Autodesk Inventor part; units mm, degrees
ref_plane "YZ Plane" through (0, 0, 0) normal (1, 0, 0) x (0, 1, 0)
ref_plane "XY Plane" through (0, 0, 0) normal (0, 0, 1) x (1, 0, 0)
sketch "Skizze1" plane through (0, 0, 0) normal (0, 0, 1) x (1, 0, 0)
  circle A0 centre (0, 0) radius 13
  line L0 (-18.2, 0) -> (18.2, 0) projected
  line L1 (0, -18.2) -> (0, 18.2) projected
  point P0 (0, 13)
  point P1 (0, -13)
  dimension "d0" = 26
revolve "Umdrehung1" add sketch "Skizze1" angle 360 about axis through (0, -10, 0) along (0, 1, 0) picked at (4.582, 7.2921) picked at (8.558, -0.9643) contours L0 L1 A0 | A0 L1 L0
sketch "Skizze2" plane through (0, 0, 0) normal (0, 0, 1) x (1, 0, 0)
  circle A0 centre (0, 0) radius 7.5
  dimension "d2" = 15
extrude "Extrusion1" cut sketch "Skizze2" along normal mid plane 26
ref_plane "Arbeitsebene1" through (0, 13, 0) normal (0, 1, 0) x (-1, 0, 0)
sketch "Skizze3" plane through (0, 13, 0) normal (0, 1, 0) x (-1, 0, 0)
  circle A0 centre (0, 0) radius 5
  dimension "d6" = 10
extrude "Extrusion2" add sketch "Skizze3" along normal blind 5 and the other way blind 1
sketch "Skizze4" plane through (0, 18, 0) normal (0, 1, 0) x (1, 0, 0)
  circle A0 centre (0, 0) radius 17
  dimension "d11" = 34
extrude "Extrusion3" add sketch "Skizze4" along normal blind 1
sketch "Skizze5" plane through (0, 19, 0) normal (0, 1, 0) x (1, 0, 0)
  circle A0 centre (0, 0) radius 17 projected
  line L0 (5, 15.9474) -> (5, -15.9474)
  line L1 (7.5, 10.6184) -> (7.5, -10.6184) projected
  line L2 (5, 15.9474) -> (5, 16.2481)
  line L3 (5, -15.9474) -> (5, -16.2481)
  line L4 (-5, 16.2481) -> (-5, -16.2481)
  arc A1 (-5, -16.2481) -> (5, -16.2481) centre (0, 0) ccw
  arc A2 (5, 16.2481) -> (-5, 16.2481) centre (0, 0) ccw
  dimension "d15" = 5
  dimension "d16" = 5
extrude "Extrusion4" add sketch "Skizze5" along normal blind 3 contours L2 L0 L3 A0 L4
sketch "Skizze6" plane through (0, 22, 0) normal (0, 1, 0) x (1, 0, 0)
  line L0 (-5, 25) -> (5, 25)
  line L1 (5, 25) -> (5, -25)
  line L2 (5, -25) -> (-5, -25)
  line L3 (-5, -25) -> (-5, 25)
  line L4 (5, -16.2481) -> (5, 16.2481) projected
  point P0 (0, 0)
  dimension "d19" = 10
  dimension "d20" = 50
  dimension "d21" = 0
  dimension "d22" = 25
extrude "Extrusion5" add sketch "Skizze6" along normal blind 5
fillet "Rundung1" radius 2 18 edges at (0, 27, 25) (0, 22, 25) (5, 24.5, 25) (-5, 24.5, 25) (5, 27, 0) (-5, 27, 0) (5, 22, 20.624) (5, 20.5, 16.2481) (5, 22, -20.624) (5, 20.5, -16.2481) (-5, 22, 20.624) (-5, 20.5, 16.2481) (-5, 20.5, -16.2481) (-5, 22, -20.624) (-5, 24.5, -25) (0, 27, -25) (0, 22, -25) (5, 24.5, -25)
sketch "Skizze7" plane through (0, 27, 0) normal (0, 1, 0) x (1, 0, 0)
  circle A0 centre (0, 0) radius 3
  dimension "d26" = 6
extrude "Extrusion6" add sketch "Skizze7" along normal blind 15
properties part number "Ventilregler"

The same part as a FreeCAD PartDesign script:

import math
import FreeCAD as App
import Part
import Sketcher


def edges_at(feature, points):
    """Names of the edges that pass closest to the given points."""
    edges = feature.Shape.Edges
    near = lambda p: min(range(len(edges)), key=lambda i: edges[i].distToShape(Part.Vertex(*p))[0])
    return sorted({f"Edge{near(p) + 1}" for p in points})

doc = App.newDocument("Part")
body = doc.addObject("PartDesign::Body", "Body")

sketch1 = body.newObject("Sketcher::SketchObject", "Sketch")
sketch1.AttachmentSupport = (doc.getObject("XY_Plane"), [""])
sketch1.MapMode = "FlatFace"
sketch1.addGeometry([
    Part.LineSegment(App.Vector(0, 13, 0), App.Vector(0, -13, 0)),
    Part.ArcOfCircle(Part.Circle(App.Vector(0, 0, 0), App.Vector(0, 0, 1), 13), math.radians(-90), math.radians(90)),
], False)
sketch1.addConstraint([
    Sketcher.Constraint("Coincident", 0, 1, 1, 2),
    Sketcher.Constraint("Coincident", 1, 1, 0, 2),
    Sketcher.Constraint("Vertical", 0),
    Sketcher.Constraint("Coincident", 1, 3, -1, 1),
    Sketcher.Constraint("PointOnObject", 0, 1, -2),
    Sketcher.Constraint("Radius", 1, 13.0),
])
revolution = body.newObject("PartDesign::Revolution", "Revolution")
revolution.Profile = sketch1
revolution.ReferenceAxis = (sketch1, ["V_Axis"])
revolution.Angle = 360

sketch2 = body.newObject("Sketcher::SketchObject", "Sketch001")
sketch2.AttachmentSupport = (doc.getObject("XY_Plane"), [""])
sketch2.MapMode = "FlatFace"
sketch2.addGeometry(Part.Circle(App.Vector(0, 0, 0), App.Vector(0, 0, 1), 7.5), False)
sketch2.addConstraint([
    Sketcher.Constraint("Coincident", 0, 3, -1, 1),
    Sketcher.Constraint("Diameter", 0, 15.0),
])
pocket1 = body.newObject("PartDesign::Pocket", "Pocket")
pocket1.Profile = sketch2
pocket1.Length = 26
pocket1.Midplane = True

sketch3 = body.newObject("Sketcher::SketchObject", "Sketch002")
sketch3.AttachmentSupport = (doc.getObject("XZ_Plane"), [""])
sketch3.MapMode = "FlatFace"
sketch3.AttachmentOffset = App.Placement(App.Vector(0, 0, -13), App.Rotation())
sketch3.addGeometry(Part.Circle(App.Vector(0, 0, 0), App.Vector(0, 0, 1), 5), False)
sketch3.addConstraint([
    Sketcher.Constraint("Coincident", 0, 3, -1, 1),
    Sketcher.Constraint("Diameter", 0, 10.0),
])
pad1 = body.newObject("PartDesign::Pad", "Pad")
pad1.Profile = sketch3
pad1.Type = "TwoLengths"
pad1.Length = 5
pad1.Length2 = 1
pad1.Reversed = True

sketch4 = body.newObject("Sketcher::SketchObject", "Sketch003")
sketch4.AttachmentSupport = (doc.getObject("XZ_Plane"), [""])
sketch4.MapMode = "FlatFace"
sketch4.AttachmentOffset = App.Placement(App.Vector(0, 0, -18), App.Rotation())
sketch4.addGeometry(Part.Circle(App.Vector(0, 0, 0), App.Vector(0, 0, 1), 17), False)
sketch4.addConstraint([
    Sketcher.Constraint("Coincident", 0, 3, -1, 1),
    Sketcher.Constraint("Diameter", 0, 34.0),
])
pad2 = body.newObject("PartDesign::Pad", "Pad001")
pad2.Profile = sketch4
pad2.Length = 1
pad2.Reversed = True

sketch5 = body.newObject("Sketcher::SketchObject", "Sketch004")
sketch5.AttachmentSupport = (doc.getObject("XZ_Plane"), [""])
sketch5.MapMode = "FlatFace"
sketch5.AttachmentOffset = App.Placement(App.Vector(0, 0, -19), App.Rotation())
sketch5.addGeometry([
    Part.LineSegment(App.Vector(5, 16.2481, 0), App.Vector(5, -16.2481, 0)),
    Part.ArcOfCircle(Part.Circle(App.Vector(0, 0, 0), App.Vector(0, 0, 1), 17), math.radians(-107.104612), math.radians(-72.895388)),
    Part.LineSegment(App.Vector(-5, -16.2481, 0), App.Vector(-5, 16.2481, 0)),
    Part.ArcOfCircle(Part.Circle(App.Vector(0, 0, 0), App.Vector(0, 0, 1), 17), math.radians(72.895388), math.radians(107.104612)),
], False)
sketch5.addConstraint([
    Sketcher.Constraint("Coincident", 0, 2, 1, 2),
    Sketcher.Constraint("Coincident", 1, 1, 2, 1),
    Sketcher.Constraint("Coincident", 2, 2, 3, 2),
    Sketcher.Constraint("Coincident", 3, 1, 0, 1),
    Sketcher.Constraint("Vertical", 0),
    Sketcher.Constraint("Vertical", 2),
    Sketcher.Constraint("Coincident", 1, 3, -1, 1),
    Sketcher.Constraint("Coincident", 3, 3, -1, 1),
    Sketcher.Constraint("Equal", 1, 3),
    Sketcher.Constraint("Horizontal", 0, 2, 1, 1),
    Sketcher.Constraint("DistanceX", -1, 1, 0, 2, 5.0),
    Sketcher.Constraint("Radius", 1, 17.0),
])
pad3 = body.newObject("PartDesign::Pad", "Pad002")
pad3.Profile = sketch5
pad3.Length = 3
pad3.Reversed = True

sketch6 = body.newObject("Sketcher::SketchObject", "Sketch005")
sketch6.AttachmentSupport = (doc.getObject("XZ_Plane"), [""])
sketch6.MapMode = "FlatFace"
sketch6.AttachmentOffset = App.Placement(App.Vector(0, 0, -22), App.Rotation())
sketch6.addGeometry([
    Part.LineSegment(App.Vector(5, -25, 0), App.Vector(-5, -25, 0)),
    Part.LineSegment(App.Vector(-5, -25, 0), App.Vector(-5, 25, 0)),
    Part.LineSegment(App.Vector(-5, 25, 0), App.Vector(5, 25, 0)),
    Part.LineSegment(App.Vector(5, 25, 0), App.Vector(5, -25, 0)),
], False)
sketch6.addConstraint([
    Sketcher.Constraint("Coincident", 0, 2, 1, 1),
    Sketcher.Constraint("Coincident", 1, 2, 2, 1),
    Sketcher.Constraint("Coincident", 2, 2, 3, 1),
    Sketcher.Constraint("Coincident", 3, 2, 0, 1),
    Sketcher.Constraint("Horizontal", 0),
    Sketcher.Constraint("Vertical", 1),
    Sketcher.Constraint("Horizontal", 2),
    Sketcher.Constraint("Vertical", 3),
    Sketcher.Constraint("Symmetric", 0, 2, 2, 2, -1, 1),
    Sketcher.Constraint("DistanceX", 0, 2, 0, 1, 10.0),
    Sketcher.Constraint("DistanceY", 1, 1, 1, 2, 50.0),
])
pad4 = body.newObject("PartDesign::Pad", "Pad003")
pad4.Profile = sketch6
pad4.Length = 5
pad4.Reversed = True
doc.recompute()

fillet = body.newObject("PartDesign::Fillet", "Fillet")
fillet.Base = (pad4, edges_at(pad4, [
    (0, 27, 25),
    (0, 22, 25),
    (5, 24.5, 25),
    (-5, 24.5, 25),
    (5, 27, 0),
    (-5, 27, 0),
    (5, 22, 20.624),
    (5, 20.5, 16.248),
    (5, 22, -20.624),
    (5, 20.5, -16.248),
    (-5, 22, 20.624),
    (-5, 20.5, 16.248),
    (-5, 20.5, -16.248),
    (-5, 22, -20.624),
    (-5, 24.5, -25),
    (0, 27, -25),
    (0, 22, -25),
    (5, 24.5, -25),
]))
fillet.Radius = 2

sketch7 = body.newObject("Sketcher::SketchObject", "Sketch006")
sketch7.AttachmentSupport = (doc.getObject("XZ_Plane"), [""])
sketch7.MapMode = "FlatFace"
sketch7.AttachmentOffset = App.Placement(App.Vector(0, 0, -27), App.Rotation())
sketch7.addGeometry(Part.Circle(App.Vector(0, 0, 0), App.Vector(0, 0, 1), 3), False)
sketch7.addConstraint([
    Sketcher.Constraint("Coincident", 0, 3, -1, 1),
    Sketcher.Constraint("Diameter", 0, 6.0),
])
pad5 = body.newObject("PartDesign::Pad", "Pad004")
pad5.Profile = sketch7
pad5.Length = 15
pad5.Reversed = True

doc.recompute()
